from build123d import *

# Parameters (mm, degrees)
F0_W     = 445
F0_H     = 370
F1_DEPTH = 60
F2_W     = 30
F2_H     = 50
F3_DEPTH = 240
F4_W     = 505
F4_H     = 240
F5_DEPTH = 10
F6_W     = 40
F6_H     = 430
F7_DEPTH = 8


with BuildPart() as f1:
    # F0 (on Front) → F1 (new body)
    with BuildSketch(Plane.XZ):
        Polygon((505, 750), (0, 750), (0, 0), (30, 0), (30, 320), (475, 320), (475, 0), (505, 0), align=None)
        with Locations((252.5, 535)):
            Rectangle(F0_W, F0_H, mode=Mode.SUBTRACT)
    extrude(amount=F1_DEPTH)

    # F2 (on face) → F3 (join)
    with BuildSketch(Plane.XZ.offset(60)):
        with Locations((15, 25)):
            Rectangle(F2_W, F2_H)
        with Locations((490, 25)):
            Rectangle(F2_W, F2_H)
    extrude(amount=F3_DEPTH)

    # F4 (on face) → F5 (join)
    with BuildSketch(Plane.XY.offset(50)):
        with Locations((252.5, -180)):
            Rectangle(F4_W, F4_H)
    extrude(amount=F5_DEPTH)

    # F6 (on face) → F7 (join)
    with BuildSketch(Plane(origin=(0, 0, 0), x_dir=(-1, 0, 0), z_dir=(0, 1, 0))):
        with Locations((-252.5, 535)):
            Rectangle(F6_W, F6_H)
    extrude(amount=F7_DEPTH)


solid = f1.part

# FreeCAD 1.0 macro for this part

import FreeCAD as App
import Part
import Sketcher
from FreeCAD import Vector
Q = App.Units.Quantity

doc = App.newDocument("Part")
params = doc.addObject("Spreadsheet::Sheet", "Params")
for row, (alias, value) in enumerate([
    ("sketch1_width", "505 mm"),
    ("sketch1_width2", "30 mm"),
    ("sketch1_height", "750 mm"),
    ("sketch1_height2", "320 mm"),
    ("sketch1_height3", "370 mm"),
    ("pad1_length", "60 mm"),
    ("sketch2_width", "30 mm"),
    ("sketch2_height", "50 mm"),
    ("pad2_length", "240 mm"),
    ("sketch3_width", "505 mm"),
    ("sketch3_height", "240 mm"),
    ("pad3_length", "10 mm"),
    ("sketch4_width", "40 mm"),
    ("sketch4_height", "430 mm"),
    ("pad4_length", "8 mm"),
], start=1):
    params.set(f"A{row}", alias)
    params.set(f"B{row}", "=" + value)
    params.setAlias(f"B{row}", alias)

body = doc.addObject("PartDesign::Body", "Body")

sketch1 = body.newObject("Sketcher::SketchObject", "Sketch")
sketch1.AttachmentSupport = (doc.getObject("XZ_Plane"), [""])
sketch1.MapMode = "FlatFace"
sketch1.addGeometry([
    Part.LineSegment(Vector(505, 750, 0), Vector(0, 750, 0)),
    Part.LineSegment(Vector(0, 750, 0), Vector(0, 0, 0)),
    Part.LineSegment(Vector(0, 0, 0), Vector(30, 0, 0)),
    Part.LineSegment(Vector(30, 0, 0), Vector(30, 320, 0)),
    Part.LineSegment(Vector(30, 320, 0), Vector(475, 320, 0)),
    Part.LineSegment(Vector(475, 320, 0), Vector(475, 0, 0)),
    Part.LineSegment(Vector(475, 0, 0), Vector(505, 0, 0)),
    Part.LineSegment(Vector(505, 0, 0), Vector(505, 750, 0)),
    Part.LineSegment(Vector(475, 350, 0), Vector(30, 350, 0)),
    Part.LineSegment(Vector(30, 350, 0), Vector(30, 720, 0)),
    Part.LineSegment(Vector(30, 720, 0), Vector(475, 720, 0)),
    Part.LineSegment(Vector(475, 720, 0), Vector(475, 350, 0)),
], False)
sketch1.addConstraint([
    Sketcher.Constraint("Coincident", 0, 2, 1, 1),
    Sketcher.Constraint("Coincident", 1, 2, 2, 1),
    Sketcher.Constraint("Coincident", 2, 2, 3, 1),
    Sketcher.Constraint("Coincident", 3, 2, 4, 1),
    Sketcher.Constraint("Coincident", 4, 2, 5, 1),
    Sketcher.Constraint("Coincident", 5, 2, 6, 1),
    Sketcher.Constraint("Coincident", 6, 2, 7, 1),
    Sketcher.Constraint("Coincident", 7, 2, 0, 1),
    Sketcher.Constraint("Coincident", 8, 2, 9, 1),
    Sketcher.Constraint("Coincident", 9, 2, 10, 1),
    Sketcher.Constraint("Coincident", 10, 2, 11, 1),
    Sketcher.Constraint("Coincident", 11, 2, 8, 1),
    Sketcher.Constraint("Horizontal", 0),
    Sketcher.Constraint("Vertical", 1),
    Sketcher.Constraint("Horizontal", 2),
    Sketcher.Constraint("Vertical", 3),
    Sketcher.Constraint("Horizontal", 4),
    Sketcher.Constraint("Vertical", 5),
    Sketcher.Constraint("Horizontal", 6),
    Sketcher.Constraint("Vertical", 7),
    Sketcher.Constraint("Horizontal", 8),
    Sketcher.Constraint("Vertical", 9),
    Sketcher.Constraint("Horizontal", 10),
    Sketcher.Constraint("Vertical", 11),
    Sketcher.Constraint("Coincident", 1, 2, -1, 1),
    Sketcher.Constraint("PointOnObject", 5, 2, -1),
    Sketcher.Constraint("Vertical", 3, 2, 8, 2),
    Sketcher.Constraint("Vertical", 5, 2, 10, 2),
    Sketcher.Constraint("Equal", 2, 6),
    Sketcher.Constraint("DistanceX", 0, 2, 0, 1, Q("505 mm")),
    Sketcher.Constraint("DistanceX", 2, 1, 2, 2, Q("30 mm")),
    Sketcher.Constraint("DistanceY", 1, 2, 1, 1, Q("750 mm")),
    Sketcher.Constraint("DistanceY", 3, 1, 3, 2, Q("320 mm")),
    Sketcher.Constraint("DistanceY", 9, 1, 9, 2, Q("370 mm")),
    Sketcher.Constraint("DistanceY", -1, 1, 8, 2, Q("350 mm")),
])
sketch1.setExpression("Constraints[29]", "Params.sketch1_width")
sketch1.setExpression("Constraints[30]", "Params.sketch1_width2")
sketch1.setExpression("Constraints[31]", "Params.sketch1_height")
sketch1.setExpression("Constraints[32]", "Params.sketch1_height2")
sketch1.setExpression("Constraints[33]", "Params.sketch1_height3")
pad1 = body.newObject("PartDesign::Pad", "Pad")
pad1.Profile = sketch1
pad1.setExpression("Length", "Params.pad1_length")

sketch2 = body.newObject("Sketcher::SketchObject", "Sketch001")
sketch2.AttachmentSupport = (doc.getObject("XZ_Plane"), [""])
sketch2.MapMode = "FlatFace"
sketch2.AttachmentOffset = App.Placement(Vector(0, 0, 60), App.Rotation())
sketch2.addGeometry([
    Part.LineSegment(Vector(0, 50, 0), Vector(0, 0, 0)),
    Part.LineSegment(Vector(0, 0, 0), Vector(30, 0, 0)),
    Part.LineSegment(Vector(30, 0, 0), Vector(30, 50, 0)),
    Part.LineSegment(Vector(30, 50, 0), Vector(0, 50, 0)),
    Part.LineSegment(Vector(475, 50, 0), Vector(475, 0, 0)),
    Part.LineSegment(Vector(475, 0, 0), Vector(505, 0, 0)),
    Part.LineSegment(Vector(505, 0, 0), Vector(505, 50, 0)),
    Part.LineSegment(Vector(505, 50, 0), Vector(475, 50, 0)),
], False)
sketch2.addConstraint([
    Sketcher.Constraint("Coincident", 0, 2, 1, 1),
    Sketcher.Constraint("Coincident", 1, 2, 2, 1),
    Sketcher.Constraint("Coincident", 2, 2, 3, 1),
    Sketcher.Constraint("Coincident", 3, 2, 0, 1),
    Sketcher.Constraint("Coincident", 4, 2, 5, 1),
    Sketcher.Constraint("Coincident", 5, 2, 6, 1),
    Sketcher.Constraint("Coincident", 6, 2, 7, 1),
    Sketcher.Constraint("Coincident", 7, 2, 4, 1),
    Sketcher.Constraint("Vertical", 0),
    Sketcher.Constraint("Horizontal", 1),
    Sketcher.Constraint("Vertical", 2),
    Sketcher.Constraint("Horizontal", 3),
    Sketcher.Constraint("Vertical", 4),
    Sketcher.Constraint("Horizontal", 5),
    Sketcher.Constraint("Vertical", 6),
    Sketcher.Constraint("Horizontal", 7),
    Sketcher.Constraint("Coincident", 0, 2, -1, 1),
    Sketcher.Constraint("PointOnObject", 4, 2, -1),
    Sketcher.Constraint("Horizontal", 3, 2, 6, 2),
    Sketcher.Constraint("Equal", 3, 5),
    Sketcher.Constraint("DistanceX", 1, 1, 1, 2, Q("30 mm")),
    Sketcher.Constraint("DistanceY", 0, 2, 0, 1, Q("50 mm")),
    Sketcher.Constraint("DistanceX", -1, 1, 4, 2, Q("475 mm")),
])
sketch2.setExpression("Constraints[20]", "Params.sketch2_width")
sketch2.setExpression("Constraints[21]", "Params.sketch2_height")
pad2 = body.newObject("PartDesign::Pad", "Pad001")
pad2.Profile = sketch2
pad2.setExpression("Length", "Params.pad2_length")

sketch3 = body.newObject("Sketcher::SketchObject", "Sketch002")
sketch3.AttachmentSupport = (doc.getObject("XY_Plane"), [""])
sketch3.MapMode = "FlatFace"
sketch3.AttachmentOffset = App.Placement(Vector(0, 0, 50), App.Rotation())
sketch3.addGeometry([
    Part.LineSegment(Vector(0, -60, 0), Vector(0, -300, 0)),
    Part.LineSegment(Vector(0, -300, 0), Vector(505, -300, 0)),
    Part.LineSegment(Vector(505, -300, 0), Vector(505, -60, 0)),
    Part.LineSegment(Vector(505, -60, 0), Vector(0, -60, 0)),
], False)
sketch3.addConstraint([
    Sketcher.Constraint("Coincident", 0, 2, 1, 1),
    Sketcher.Constraint("Coincident", 1, 2, 2, 1),
    Sketcher.Constraint("Coincident", 2, 2, 3, 1),
    Sketcher.Constraint("Coincident", 3, 2, 0, 1),
    Sketcher.Constraint("Vertical", 0),
    Sketcher.Constraint("Horizontal", 1),
    Sketcher.Constraint("Vertical", 2),
    Sketcher.Constraint("Horizontal", 3),
    Sketcher.Constraint("PointOnObject", 0, 2, -2),
    Sketcher.Constraint("DistanceX", 1, 1, 1, 2, Q("505 mm")),
    Sketcher.Constraint("DistanceY", 0, 2, 0, 1, Q("240 mm")),
    Sketcher.Constraint("DistanceY", 0, 2, -1, 1, Q("300 mm")),
])
sketch3.setExpression("Constraints[9]", "Params.sketch3_width")
sketch3.setExpression("Constraints[10]", "Params.sketch3_height")
pad3 = body.newObject("PartDesign::Pad", "Pad002")
pad3.Profile = sketch3
pad3.setExpression("Length", "Params.pad3_length")

sketch4 = body.newObject("Sketcher::SketchObject", "Sketch003")
sketch4.AttachmentSupport = (doc.getObject("XZ_Plane"), [""])
sketch4.MapMode = "FlatFace"
sketch4.addGeometry([
    Part.LineSegment(Vector(272, 750, 0), Vector(272, 320, 0)),
    Part.LineSegment(Vector(272, 320, 0), Vector(232, 320, 0)),
    Part.LineSegment(Vector(232, 320, 0), Vector(232, 750, 0)),
    Part.LineSegment(Vector(232, 750, 0), Vector(272, 750, 0)),
], False)
sketch4.addConstraint([
    Sketcher.Constraint("Coincident", 0, 2, 1, 1),
    Sketcher.Constraint("Coincident", 1, 2, 2, 1),
    Sketcher.Constraint("Coincident", 2, 2, 3, 1),
    Sketcher.Constraint("Coincident", 3, 2, 0, 1),
    Sketcher.Constraint("Vertical", 0),
    Sketcher.Constraint("Horizontal", 1),
    Sketcher.Constraint("Vertical", 2),
    Sketcher.Constraint("Horizontal", 3),
    Sketcher.Constraint("DistanceX", 1, 2, 1, 1, Q("40 mm")),
    Sketcher.Constraint("DistanceY", 0, 2, 0, 1, Q("430 mm")),
    Sketcher.Constraint("DistanceY", -1, 1, 0, 2, Q("320 mm")),
    Sketcher.Constraint("DistanceX", -1, 1, 0, 2, Q("272.5 mm")),
])
sketch4.setExpression("Constraints[8]", "Params.sketch4_width")
sketch4.setExpression("Constraints[9]", "Params.sketch4_height")
pad4 = body.newObject("PartDesign::Pad", "Pad003")
pad4.Profile = sketch4
pad4.setExpression("Length", "Params.pad4_length")
pad4.Reversed = True

doc.recompute()
